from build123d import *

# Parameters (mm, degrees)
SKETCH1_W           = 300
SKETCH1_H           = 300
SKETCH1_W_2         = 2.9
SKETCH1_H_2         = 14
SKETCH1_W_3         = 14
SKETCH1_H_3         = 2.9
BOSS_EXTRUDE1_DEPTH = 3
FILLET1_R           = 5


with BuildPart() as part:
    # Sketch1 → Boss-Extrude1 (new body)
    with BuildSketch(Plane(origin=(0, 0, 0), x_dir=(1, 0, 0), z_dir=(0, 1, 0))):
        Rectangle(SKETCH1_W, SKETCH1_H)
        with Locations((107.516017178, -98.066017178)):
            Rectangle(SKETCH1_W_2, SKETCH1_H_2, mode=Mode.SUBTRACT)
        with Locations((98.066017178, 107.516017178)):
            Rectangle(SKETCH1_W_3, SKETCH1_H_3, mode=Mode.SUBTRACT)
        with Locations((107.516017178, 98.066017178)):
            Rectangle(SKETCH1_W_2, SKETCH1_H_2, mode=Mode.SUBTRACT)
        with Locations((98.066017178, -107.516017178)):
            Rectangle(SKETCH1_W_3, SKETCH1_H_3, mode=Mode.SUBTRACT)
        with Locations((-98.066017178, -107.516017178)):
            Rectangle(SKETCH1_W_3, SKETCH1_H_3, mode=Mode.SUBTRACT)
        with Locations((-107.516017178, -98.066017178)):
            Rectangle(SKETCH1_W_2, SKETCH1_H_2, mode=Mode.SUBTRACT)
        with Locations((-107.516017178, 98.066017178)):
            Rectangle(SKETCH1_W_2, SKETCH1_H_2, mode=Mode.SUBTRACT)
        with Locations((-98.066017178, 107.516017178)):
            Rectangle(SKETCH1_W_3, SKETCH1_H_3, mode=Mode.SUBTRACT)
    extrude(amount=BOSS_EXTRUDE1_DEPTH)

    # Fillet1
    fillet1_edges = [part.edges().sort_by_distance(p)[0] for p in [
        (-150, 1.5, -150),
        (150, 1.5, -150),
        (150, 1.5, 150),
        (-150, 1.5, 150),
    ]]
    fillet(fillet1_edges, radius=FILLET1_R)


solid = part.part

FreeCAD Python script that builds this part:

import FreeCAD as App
import Part
import Sketcher
from FreeCAD import Vector


def edges_at(feature, points):
    """Names of the edges that pass closest to the given points."""
    edges = feature.Shape.Edges
    near = lambda p: min(range(len(edges)), key=lambda i: edges[i].distToShape(Part.Vertex(*p))[0])
    return sorted({f"Edge{near(p) + 1}" for p in points})

doc = App.newDocument("Part")
body = doc.addObject("PartDesign::Body", "Body")

sketch1 = body.newObject("Sketcher::SketchObject", "Sketch")
sketch1.AttachmentSupport = (doc.getObject("XZ_Plane"), [""])
sketch1.MapMode = "FlatFace"
sketch1.addGeometry([
    Part.LineSegment(Vector(-150, -150, 0), Vector(-150, 150, 0)),
    Part.LineSegment(Vector(-150, 150, 0), Vector(150, 150, 0)),
    Part.LineSegment(Vector(150, 150, 0), Vector(150, -150, 0)),
    Part.LineSegment(Vector(150, -150, 0), Vector(-150, -150, 0)),
    Part.LineSegment(Vector(-91.1, 109, 0), Vector(-105.1, 109, 0)),
    Part.LineSegment(Vector(-105.1, 109, 0), Vector(-105.1, 106.1, 0)),
    Part.LineSegment(Vector(-105.1, 106.1, 0), Vector(-91.1, 106.1, 0)),
    Part.LineSegment(Vector(-91.1, 106.1, 0), Vector(-91.1, 109, 0)),
    Part.LineSegment(Vector(-106.1, 105.1, 0), Vector(-109, 105.1, 0)),
    Part.LineSegment(Vector(-109, 105.1, 0), Vector(-109, 91.1, 0)),
    Part.LineSegment(Vector(-109, 91.1, 0), Vector(-106.1, 91.1, 0)),
    Part.LineSegment(Vector(-106.1, 91.1, 0), Vector(-106.1, 105.1, 0)),
    Part.LineSegment(Vector(105.1, 109, 0), Vector(91.1, 109, 0)),
    Part.LineSegment(Vector(91.1, 109, 0), Vector(91.1, 106.1, 0)),
    Part.LineSegment(Vector(91.1, 106.1, 0), Vector(105.1, 106.1, 0)),
    Part.LineSegment(Vector(105.1, 106.1, 0), Vector(105.1, 109, 0)),
    Part.LineSegment(Vector(109, 105.1, 0), Vector(106.1, 105.1, 0)),
    Part.LineSegment(Vector(106.1, 105.1, 0), Vector(106.1, 91.1, 0)),
    Part.LineSegment(Vector(106.1, 91.1, 0), Vector(109, 91.1, 0)),
    Part.LineSegment(Vector(109, 91.1, 0), Vector(109, 105.1, 0)),
    Part.LineSegment(Vector(-106.1, -91.1, 0), Vector(-109, -91.1, 0)),
    Part.LineSegment(Vector(-109, -91.1, 0), Vector(-109, -105.1, 0)),
    Part.LineSegment(Vector(-109, -105.1, 0), Vector(-106.1, -105.1, 0)),
    Part.LineSegment(Vector(-106.1, -105.1, 0), Vector(-106.1, -91.1, 0)),
    Part.LineSegment(Vector(-91.1, -106.1, 0), Vector(-105.1, -106.1, 0)),
    Part.LineSegment(Vector(-105.1, -106.1, 0), Vector(-105.1, -109, 0)),
    Part.LineSegment(Vector(-105.1, -109, 0), Vector(-91.1, -109, 0)),
    Part.LineSegment(Vector(-91.1, -109, 0), Vector(-91.1, -106.1, 0)),
    Part.LineSegment(Vector(109, -91.1, 0), Vector(106.1, -91.1, 0)),
    Part.LineSegment(Vector(106.1, -91.1, 0), Vector(106.1, -105.1, 0)),
    Part.LineSegment(Vector(106.1, -105.1, 0), Vector(109, -105.1, 0)),
    Part.LineSegment(Vector(109, -105.1, 0), Vector(109, -91.1, 0)),
    Part.LineSegment(Vector(105.1, -106.1, 0), Vector(91.1, -106.1, 0)),
    Part.LineSegment(Vector(91.1, -106.1, 0), Vector(91.1, -109, 0)),
    Part.LineSegment(Vector(91.1, -109, 0), Vector(105.1, -109, 0)),
    Part.LineSegment(Vector(105.1, -109, 0), Vector(105.1, -106.1, 0)),
], False)
sketch1.addConstraint([
    Sketcher.Constraint("Coincident", 0, 2, 1, 1),
    Sketcher.Constraint("Coincident", 1, 2, 2, 1),
    Sketcher.Constraint("Coincident", 2, 2, 3, 1),
    Sketcher.Constraint("Coincident", 3, 2, 0, 1),
    Sketcher.Constraint("Coincident", 4, 2, 5, 1),
    Sketcher.Constraint("Coincident", 5, 2, 6, 1),
    Sketcher.Constraint("Coincident", 6, 2, 7, 1),
    Sketcher.Constraint("Coincident", 7, 2, 4, 1),
    Sketcher.Constraint("Coincident", 8, 2, 9, 1),
    Sketcher.Constraint("Coincident", 9, 2, 10, 1),
    Sketcher.Constraint("Coincident", 10, 2, 11, 1),
    Sketcher.Constraint("Coincident", 11, 2, 8, 1),
    Sketcher.Constraint("Coincident", 12, 2, 13, 1),
    Sketcher.Constraint("Coincident", 13, 2, 14, 1),
    Sketcher.Constraint("Coincident", 14, 2, 15, 1),
    Sketcher.Constraint("Coincident", 15, 2, 12, 1),
    Sketcher.Constraint("Coincident", 16, 2, 17, 1),
    Sketcher.Constraint("Coincident", 17, 2, 18, 1),
    Sketcher.Constraint("Coincident", 18, 2, 19, 1),
    Sketcher.Constraint("Coincident", 19, 2, 16, 1),
    Sketcher.Constraint("Coincident", 20, 2, 21, 1),
    Sketcher.Constraint("Coincident", 21, 2, 22, 1),
    Sketcher.Constraint("Coincident", 22, 2, 23, 1),
    Sketcher.Constraint("Coincident", 23, 2, 20, 1),
    Sketcher.Constraint("Coincident", 24, 2, 25, 1),
    Sketcher.Constraint("Coincident", 25, 2, 26, 1),
    Sketcher.Constraint("Coincident", 26, 2, 27, 1),
    Sketcher.Constraint("Coincident", 27, 2, 24, 1),
    Sketcher.Constraint("Coincident", 28, 2, 29, 1),
    Sketcher.Constraint("Coincident", 29, 2, 30, 1),
    Sketcher.Constraint("Coincident", 30, 2, 31, 1),
    Sketcher.Constraint("Coincident", 31, 2, 28, 1),
    Sketcher.Constraint("Coincident", 32, 2, 33, 1),
    Sketcher.Constraint("Coincident", 33, 2, 34, 1),
    Sketcher.Constraint("Coincident", 34, 2, 35, 1),
    Sketcher.Constraint("Coincident", 35, 2, 32, 1),
    Sketcher.Constraint("Vertical", 0),
    Sketcher.Constraint("Horizontal", 1),
    Sketcher.Constraint("Vertical", 2),
    Sketcher.Constraint("Horizontal", 3),
    Sketcher.Constraint("Horizontal", 4),
    Sketcher.Constraint("Vertical", 5),
    Sketcher.Constraint("Horizontal", 6),
    Sketcher.Constraint("Vertical", 7),
    Sketcher.Constraint("Horizontal", 8),
    Sketcher.Constraint("Vertical", 9),
    Sketcher.Constraint("Horizontal", 10),
    Sketcher.Constraint("Vertical", 11),
    Sketcher.Constraint("Horizontal", 12),
    Sketcher.Constraint("Vertical", 13),
    Sketcher.Constraint("Horizontal", 14),
    Sketcher.Constraint("Vertical", 15),
    Sketcher.Constraint("Horizontal", 16),
    Sketcher.Constraint("Vertical", 17),
    Sketcher.Constraint("Horizontal", 18),
    Sketcher.Constraint("Vertical", 19),
    Sketcher.Constraint("Horizontal", 20),
    Sketcher.Constraint("Vertical", 21),
    Sketcher.Constraint("Horizontal", 22),
    Sketcher.Constraint("Vertical", 23),
    Sketcher.Constraint("Horizontal", 24),
    Sketcher.Constraint("Vertical", 25),
    Sketcher.Constraint("Horizontal", 26),
    Sketcher.Constraint("Vertical", 27),
    Sketcher.Constraint("Horizontal", 28),
    Sketcher.Constraint("Vertical", 29),
    Sketcher.Constraint("Horizontal", 30),
    Sketcher.Constraint("Vertical", 31),
    Sketcher.Constraint("Horizontal", 32),
    Sketcher.Constraint("Vertical", 33),
    Sketcher.Constraint("Horizontal", 34),
    Sketcher.Constraint("Vertical", 35),
    Sketcher.Constraint("Symmetric", 0, 2, 2, 2, -1, 1),
    Sketcher.Constraint("Symmetric", 18, 2, 20, 2, -1, 1),
    Sketcher.Constraint("Symmetric", 16, 2, 22, 2, -1, 1),
    Sketcher.Constraint("Symmetric", 14, 2, 24, 2, -1, 1),
    Sketcher.Constraint("Symmetric", 12, 2, 26, 2, -1, 1),
    Sketcher.Constraint("Symmetric", 10, 2, 28, 2, -1, 1),
    Sketcher.Constraint("Symmetric", 8, 2, 30, 2, -1, 1),
    Sketcher.Constraint("Symmetric", 6, 2, 32, 2, -1, 1),
    Sketcher.Constraint("Symmetric", 4, 2, 34, 2, -1, 1),
    Sketcher.Constraint("Symmetric", 7, 2, 12, 2, -2),
    Sketcher.Constraint("Symmetric", 5, 2, 14, 2, -2),
    Sketcher.Constraint("Symmetric", 11, 2, 16, 2, -2),
    Sketcher.Constraint("Symmetric", 9, 2, 18, 2, -2),
    Sketcher.Constraint("Equal", 3, 0),
    Sketcher.Constraint("Equal", 30, 5),
    Sketcher.Constraint("Equal", 34, 9),
    Sketcher.Constraint("DistanceX", 1, 1, 1, 2, 300.0),
    Sketcher.Constraint("DistanceX", 4, 2, 4, 1, 14.0),
    Sketcher.Constraint("DistanceX", 8, 2, 8, 1, 2.9),
    Sketcher.Constraint("DistanceY", 8, 2, 5, 2, 1.0),
    Sketcher.Constraint("DistanceX", 10, 2, 5, 2, 1.0),
    Sketcher.Constraint("DistanceX", 4, 2, -1, 1, 105.066017),
    Sketcher.Constraint("DistanceY", -1, 1, 4, 2, 108.966017),
])
pad1 = body.newObject("PartDesign::Pad", "Pad")
pad1.Profile = sketch1
pad1.Length = 3
pad1.Reversed = True
doc.recompute()

fillet = body.newObject("PartDesign::Fillet", "Fillet")
fillet.Base = (pad1, edges_at(pad1, [
    (-150, 1.5, -150),
    (150, 1.5, -150),
    (150, 1.5, 150),
    (-150, 1.5, 150),
]))
fillet.Radius = 5

doc.recompute()
